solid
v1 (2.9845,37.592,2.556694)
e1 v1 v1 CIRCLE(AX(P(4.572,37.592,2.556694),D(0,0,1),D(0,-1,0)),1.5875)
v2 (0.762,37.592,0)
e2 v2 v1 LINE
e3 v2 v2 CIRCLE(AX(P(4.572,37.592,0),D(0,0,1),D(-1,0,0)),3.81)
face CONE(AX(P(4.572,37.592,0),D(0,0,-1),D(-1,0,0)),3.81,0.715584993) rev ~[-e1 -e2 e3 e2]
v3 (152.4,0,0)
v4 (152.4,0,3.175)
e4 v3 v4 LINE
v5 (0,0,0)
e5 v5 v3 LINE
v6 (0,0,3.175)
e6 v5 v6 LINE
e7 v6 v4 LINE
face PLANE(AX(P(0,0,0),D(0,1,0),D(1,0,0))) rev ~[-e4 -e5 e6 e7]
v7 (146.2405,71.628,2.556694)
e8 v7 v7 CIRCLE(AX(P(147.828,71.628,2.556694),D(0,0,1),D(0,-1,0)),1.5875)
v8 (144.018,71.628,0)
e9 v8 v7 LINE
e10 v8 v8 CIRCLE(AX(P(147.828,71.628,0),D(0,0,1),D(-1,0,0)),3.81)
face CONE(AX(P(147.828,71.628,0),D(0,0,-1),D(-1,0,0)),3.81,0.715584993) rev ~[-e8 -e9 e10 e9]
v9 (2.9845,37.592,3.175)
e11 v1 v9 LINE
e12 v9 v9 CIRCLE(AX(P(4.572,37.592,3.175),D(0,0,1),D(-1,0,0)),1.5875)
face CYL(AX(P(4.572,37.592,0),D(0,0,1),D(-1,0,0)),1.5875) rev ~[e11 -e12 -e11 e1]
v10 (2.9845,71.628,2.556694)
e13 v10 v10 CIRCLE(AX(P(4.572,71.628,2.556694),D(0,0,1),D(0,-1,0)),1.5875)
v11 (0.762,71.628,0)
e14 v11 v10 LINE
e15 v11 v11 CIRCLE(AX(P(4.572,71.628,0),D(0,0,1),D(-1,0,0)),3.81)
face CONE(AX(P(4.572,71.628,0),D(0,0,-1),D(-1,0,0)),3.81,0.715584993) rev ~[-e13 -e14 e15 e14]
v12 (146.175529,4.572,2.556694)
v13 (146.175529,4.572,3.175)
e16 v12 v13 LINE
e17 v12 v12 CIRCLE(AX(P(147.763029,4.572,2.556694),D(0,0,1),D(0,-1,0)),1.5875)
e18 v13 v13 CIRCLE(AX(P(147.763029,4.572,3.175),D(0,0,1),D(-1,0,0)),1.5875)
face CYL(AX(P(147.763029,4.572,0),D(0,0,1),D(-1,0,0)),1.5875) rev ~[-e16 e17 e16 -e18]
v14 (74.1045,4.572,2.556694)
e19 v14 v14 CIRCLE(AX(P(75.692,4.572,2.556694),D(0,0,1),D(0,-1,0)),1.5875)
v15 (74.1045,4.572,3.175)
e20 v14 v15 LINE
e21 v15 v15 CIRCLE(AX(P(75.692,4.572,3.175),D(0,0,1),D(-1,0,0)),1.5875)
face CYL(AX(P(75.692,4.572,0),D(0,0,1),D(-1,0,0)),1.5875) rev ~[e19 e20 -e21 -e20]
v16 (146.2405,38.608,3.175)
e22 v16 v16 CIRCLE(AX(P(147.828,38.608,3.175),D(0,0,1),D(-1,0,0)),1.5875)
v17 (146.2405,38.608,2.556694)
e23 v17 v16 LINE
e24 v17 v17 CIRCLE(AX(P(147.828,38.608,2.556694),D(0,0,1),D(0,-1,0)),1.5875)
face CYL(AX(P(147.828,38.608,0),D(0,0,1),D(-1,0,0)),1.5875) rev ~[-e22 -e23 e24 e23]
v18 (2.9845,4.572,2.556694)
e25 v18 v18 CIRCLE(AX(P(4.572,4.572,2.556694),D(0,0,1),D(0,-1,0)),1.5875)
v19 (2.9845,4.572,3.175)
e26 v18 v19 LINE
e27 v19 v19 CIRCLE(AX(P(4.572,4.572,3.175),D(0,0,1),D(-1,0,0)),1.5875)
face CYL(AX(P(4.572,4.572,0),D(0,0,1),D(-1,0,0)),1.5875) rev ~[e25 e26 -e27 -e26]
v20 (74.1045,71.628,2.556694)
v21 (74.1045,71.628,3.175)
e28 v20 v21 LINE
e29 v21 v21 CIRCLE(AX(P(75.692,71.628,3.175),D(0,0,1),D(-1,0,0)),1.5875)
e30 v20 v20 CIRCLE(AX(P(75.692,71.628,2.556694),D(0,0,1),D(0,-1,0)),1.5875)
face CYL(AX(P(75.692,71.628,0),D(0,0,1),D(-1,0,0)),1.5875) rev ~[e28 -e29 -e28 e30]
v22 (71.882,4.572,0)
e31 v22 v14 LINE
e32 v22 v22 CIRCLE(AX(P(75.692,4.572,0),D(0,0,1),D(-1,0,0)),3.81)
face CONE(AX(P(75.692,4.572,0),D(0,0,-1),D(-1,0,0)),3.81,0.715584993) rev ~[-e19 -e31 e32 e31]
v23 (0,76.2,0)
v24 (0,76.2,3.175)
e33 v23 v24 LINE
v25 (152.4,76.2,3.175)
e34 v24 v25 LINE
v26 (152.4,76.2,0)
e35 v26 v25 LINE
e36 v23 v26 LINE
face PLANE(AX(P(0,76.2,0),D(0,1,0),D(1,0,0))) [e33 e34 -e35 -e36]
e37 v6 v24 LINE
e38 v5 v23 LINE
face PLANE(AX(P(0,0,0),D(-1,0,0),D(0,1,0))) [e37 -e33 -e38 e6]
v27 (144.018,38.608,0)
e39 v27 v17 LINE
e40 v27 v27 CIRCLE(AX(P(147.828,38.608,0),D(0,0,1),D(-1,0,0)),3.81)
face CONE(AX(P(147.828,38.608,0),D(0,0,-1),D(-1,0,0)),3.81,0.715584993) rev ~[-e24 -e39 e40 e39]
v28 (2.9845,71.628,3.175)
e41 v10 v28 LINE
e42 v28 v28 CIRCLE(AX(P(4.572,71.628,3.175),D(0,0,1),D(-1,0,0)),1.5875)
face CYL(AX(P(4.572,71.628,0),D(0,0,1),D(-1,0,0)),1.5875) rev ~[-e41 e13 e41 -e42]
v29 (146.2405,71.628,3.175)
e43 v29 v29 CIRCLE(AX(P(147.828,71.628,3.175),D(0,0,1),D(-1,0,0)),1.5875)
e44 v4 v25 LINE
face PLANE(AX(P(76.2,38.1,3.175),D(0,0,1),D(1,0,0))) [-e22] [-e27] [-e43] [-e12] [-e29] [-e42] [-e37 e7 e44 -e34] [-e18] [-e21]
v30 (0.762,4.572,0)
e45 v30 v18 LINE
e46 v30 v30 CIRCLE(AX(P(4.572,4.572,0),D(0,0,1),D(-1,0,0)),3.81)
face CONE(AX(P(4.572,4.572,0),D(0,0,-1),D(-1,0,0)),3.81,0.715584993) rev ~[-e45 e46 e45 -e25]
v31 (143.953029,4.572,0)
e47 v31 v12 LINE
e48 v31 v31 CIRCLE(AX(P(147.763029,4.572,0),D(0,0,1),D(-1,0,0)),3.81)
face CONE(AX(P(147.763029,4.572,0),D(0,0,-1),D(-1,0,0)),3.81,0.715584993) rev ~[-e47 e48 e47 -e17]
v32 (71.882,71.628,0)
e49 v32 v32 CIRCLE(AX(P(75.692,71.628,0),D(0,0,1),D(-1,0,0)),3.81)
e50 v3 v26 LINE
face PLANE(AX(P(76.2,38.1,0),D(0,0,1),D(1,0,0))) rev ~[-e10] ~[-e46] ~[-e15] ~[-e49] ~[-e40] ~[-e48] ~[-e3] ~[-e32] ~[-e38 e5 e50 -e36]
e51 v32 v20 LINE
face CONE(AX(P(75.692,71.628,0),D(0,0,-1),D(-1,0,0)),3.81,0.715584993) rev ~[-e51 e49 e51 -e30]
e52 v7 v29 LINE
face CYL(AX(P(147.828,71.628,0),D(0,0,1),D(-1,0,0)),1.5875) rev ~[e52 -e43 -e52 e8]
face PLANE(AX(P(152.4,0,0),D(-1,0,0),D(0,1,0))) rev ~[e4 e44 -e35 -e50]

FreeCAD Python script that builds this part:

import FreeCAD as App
import Part
import Sketcher
from FreeCAD import Vector
Q = App.Units.Quantity


def add_polygon(sketch, points):
    """Adds a closed chain of lines whose ends are joined by coincident constraints."""
    first, n = sketch.GeometryCount, len(points)
    for a, b in zip(points, points[1:] + points[:1]):
        sketch.addGeometry(Part.LineSegment(App.Vector(*a, 0), App.Vector(*b, 0)), False)
    for i in range(n):
        sketch.addConstraint(Sketcher.Constraint("Coincident", first + i, 2, first + (i + 1) % n, 1))

doc = App.newDocument("Part")
body = doc.addObject("PartDesign::Body", "Body")

sketch1 = body.newObject("Sketcher::SketchObject", "Sketch")
sketch1.AttachmentSupport = (doc.getObject("XY_Plane"), [""])
sketch1.MapMode = "FlatFace"
add_polygon(sketch1, [(0, 76), (0, 0), (152, 0), (152, 76)])
sketch1.addConstraint([
    Sketcher.Constraint("Vertical", 0),
    Sketcher.Constraint("Horizontal", 1),
    Sketcher.Constraint("Vertical", 2),
    Sketcher.Constraint("Horizontal", 3),
    Sketcher.Constraint("Coincident", 0, 2, -1, 1),
    Sketcher.Constraint("DistanceX", 1, 1, 1, 2, Q("6 in")),
    Sketcher.Constraint("DistanceY", 0, 2, 0, 1, Q("3 in")),
])
pad1 = body.newObject("PartDesign::Pad", "Pad")
pad1.Profile = sketch1
pad1.Length = Q("0.125 in")

sketch2 = body.newObject("Sketcher::SketchObject", "Sketch001")
sketch2.AttachmentSupport = (doc.getObject("XY_Plane"), [""])
sketch2.MapMode = "FlatFace"
sketch2.addGeometry([
    Part.Circle(Vector(4.6, 4.6, 0), Vector(0, 0, 1), 1.6),
    Part.Circle(Vector(4.6, 37.6, 0), Vector(0, 0, 1), 1.6),
    Part.Circle(Vector(4.6, 71.6, 0), Vector(0, 0, 1), 1.6),
    Part.Circle(Vector(75.7, 71.6, 0), Vector(0, 0, 1), 1.6),
    Part.Circle(Vector(147.8, 71.6, 0), Vector(0, 0, 1), 1.6),
    Part.Circle(Vector(147.8, 38.6, 0), Vector(0, 0, 1), 1.6),
    Part.Circle(Vector(147.8, 457.2, 0), Vector(0, 0, 1), 1.6),
    Part.Circle(Vector(75.7, 4.6, 0), Vector(0, 0, 1), 1.6),
    Part.Circle(Vector(147.8, 4.6, 0), Vector(0, 0, 1), 1.6),
], False)
sketch2.addConstraint([
    Sketcher.Constraint("Equal", 0, 1),
    Sketcher.Constraint("Equal", 1, 2),
    Sketcher.Constraint("Equal", 2, 3),
    Sketcher.Constraint("Equal", 3, 4),
    Sketcher.Constraint("Equal", 4, 5),
    Sketcher.Constraint("Equal", 5, 6),
    Sketcher.Constraint("Equal", 6, 7),
    Sketcher.Constraint("Equal", 7, 8),
    Sketcher.Constraint("Horizontal", 2, 3, 3, 3),
    Sketcher.Constraint("Horizontal", 3, 3, 4, 3),
    Sketcher.Constraint("Horizontal", 0, 3, 7, 3),
    Sketcher.Constraint("Horizontal", 7, 3, 8, 3),
    Sketcher.Constraint("Vertical", 0, 3, 1, 3),
    Sketcher.Constraint("Vertical", 1, 3, 2, 3),
    Sketcher.Constraint("Vertical", 4, 3, 5, 3),
    Sketcher.Constraint("Vertical", 5, 3, 6, 3),
    Sketcher.Constraint("Vertical", 3, 3, 7, 3),
    Sketcher.Constraint("Diameter", 0, Q("0.125 in")),
    Sketcher.Constraint("DistanceY", -1, 1, 6, 3, Q("18 in")),
    Sketcher.Constraint("DistanceY", 0, 3, 1, 3, Q("1.3 in")),
    Sketcher.Constraint("DistanceX", 2, 3, 3, 3, Q("2.8 in")),
    Sketcher.Constraint("DistanceY", 5, 3, 4, 3, Q("1.3 in")),
    Sketcher.Constraint("DistanceX", -1, 1, 0, 3, Q("0.18 in")),
    Sketcher.Constraint("DistanceY", -1, 1, 0, 3, Q("0.18 in")),
    Sketcher.Constraint("DistanceY", -1, 1, 2, 3, Q("2.82 in")),
    Sketcher.Constraint("DistanceX", -1, 1, 4, 3, Q("5.82 in")),
    Sketcher.Constraint("DistanceX", -1, 1, 8, 3, Q("147.763029 mm")),
])
doc.recompute()
hole = body.newObject("PartDesign::Hole", "Hole")
hole.Profile = sketch2
hole.ThreadType = "None"
hole.Diameter = Q("0.125 in")
hole.DepthType = "ThroughAll"
hole.HoleCutType = "Countersink"
hole.HoleCutDiameter = Q("0.3 in")
hole.HoleCutCountersinkAngle = 82
hole.Reversed = True

doc.recompute()
